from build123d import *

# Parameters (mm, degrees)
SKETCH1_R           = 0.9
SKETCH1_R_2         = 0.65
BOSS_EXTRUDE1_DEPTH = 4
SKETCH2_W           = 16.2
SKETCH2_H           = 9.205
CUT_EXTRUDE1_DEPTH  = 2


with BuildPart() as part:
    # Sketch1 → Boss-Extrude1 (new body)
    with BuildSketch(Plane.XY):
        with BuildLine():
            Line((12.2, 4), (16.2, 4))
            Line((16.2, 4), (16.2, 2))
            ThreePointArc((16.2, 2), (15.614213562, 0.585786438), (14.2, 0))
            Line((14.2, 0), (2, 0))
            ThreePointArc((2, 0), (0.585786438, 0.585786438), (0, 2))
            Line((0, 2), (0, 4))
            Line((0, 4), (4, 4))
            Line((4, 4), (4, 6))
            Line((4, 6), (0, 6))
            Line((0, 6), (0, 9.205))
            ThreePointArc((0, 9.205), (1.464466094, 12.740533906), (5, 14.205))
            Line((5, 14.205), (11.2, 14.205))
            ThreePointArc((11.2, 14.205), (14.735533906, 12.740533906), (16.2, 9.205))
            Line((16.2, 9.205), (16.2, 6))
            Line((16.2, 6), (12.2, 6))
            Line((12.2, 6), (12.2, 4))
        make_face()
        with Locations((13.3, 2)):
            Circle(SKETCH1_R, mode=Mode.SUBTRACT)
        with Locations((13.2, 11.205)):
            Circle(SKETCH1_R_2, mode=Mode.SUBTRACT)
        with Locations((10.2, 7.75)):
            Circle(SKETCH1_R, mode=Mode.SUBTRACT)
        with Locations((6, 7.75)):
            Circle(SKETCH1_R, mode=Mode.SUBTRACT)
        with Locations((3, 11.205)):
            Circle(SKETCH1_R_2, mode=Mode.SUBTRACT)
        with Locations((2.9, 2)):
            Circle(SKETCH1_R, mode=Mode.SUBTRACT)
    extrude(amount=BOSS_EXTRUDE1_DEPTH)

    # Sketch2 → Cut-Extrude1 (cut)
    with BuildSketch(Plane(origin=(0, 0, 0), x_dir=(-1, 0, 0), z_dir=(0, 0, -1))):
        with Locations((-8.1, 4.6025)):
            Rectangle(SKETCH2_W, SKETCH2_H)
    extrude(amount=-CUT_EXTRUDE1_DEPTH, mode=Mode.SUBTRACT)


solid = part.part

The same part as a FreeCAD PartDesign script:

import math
import FreeCAD as App
import Part
import Sketcher
Q = App.Units.Quantity


def add_polygon(sketch, points):
    """Adds a closed chain of lines whose ends are joined by coincident constraints."""
    first, n = sketch.GeometryCount, len(points)
    for a, b in zip(points, points[1:] + points[:1]):
        sketch.addGeometry(Part.LineSegment(App.Vector(*a, 0), App.Vector(*b, 0)), False)
    for i in range(n):
        sketch.addConstraint(Sketcher.Constraint("Coincident", first + i, 2, first + (i + 1) % n, 1))

doc = App.newDocument("Part")
body = doc.addObject("PartDesign::Body", "Body")

sketch1 = doc.addObject("Sketcher::SketchObject", "Sketch")
body.addObject(sketch1)
sketch1.AttachmentSupport = (doc.XY_Plane, [""])
sketch1.MapMode = "FlatFace"
sketch1.addGeometry([
    Part.LineSegment(App.Vector(16.2, 4, 0), App.Vector(12.2, 4, 0)),
    Part.LineSegment(App.Vector(12.2, 4, 0), App.Vector(12.2, 6, 0)),
    Part.LineSegment(App.Vector(12.2, 6, 0), App.Vector(16.2, 6, 0)),
    Part.LineSegment(App.Vector(16.2, 6, 0), App.Vector(16.2, 9.2, 0)),
    Part.ArcOfCircle(Part.Circle(App.Vector(11.2, 9.2, 0), App.Vector(0, 0, 1), 5), math.radians(0), math.radians(90)),
    Part.LineSegment(App.Vector(11.2, 14.2, 0), App.Vector(5, 14.2, 0)),
    Part.ArcOfCircle(Part.Circle(App.Vector(5, 9.2, 0), App.Vector(0, 0, 1), 5), math.radians(90), math.radians(180)),
    Part.LineSegment(App.Vector(0, 9.2, 0), App.Vector(0, 6, 0)),
    Part.LineSegment(App.Vector(0, 6, 0), App.Vector(4, 6, 0)),
    Part.LineSegment(App.Vector(4, 6, 0), App.Vector(4, 4, 0)),
    Part.LineSegment(App.Vector(4, 4, 0), App.Vector(0, 4, 0)),
    Part.LineSegment(App.Vector(0, 4, 0), App.Vector(0, 2, 0)),
    Part.ArcOfCircle(Part.Circle(App.Vector(2, 2, 0), App.Vector(0, 0, 1), 2), math.radians(-180), math.radians(-90)),
    Part.LineSegment(App.Vector(2, 0, 0), App.Vector(14.2, 0, 0)),
    Part.ArcOfCircle(Part.Circle(App.Vector(14.2, 2, 0), App.Vector(0, 0, 1), 2), math.radians(-90), math.radians(0)),
    Part.LineSegment(App.Vector(16.2, 2, 0), App.Vector(16.2, 4, 0)),
    Part.Circle(App.Vector(13.3, 2, 0), App.Vector(0, 0, 1), 0.9),
    Part.Circle(App.Vector(2.9, 2, 0), App.Vector(0, 0, 1), 0.9),
    Part.Circle(App.Vector(10.2, 7.8, 0), App.Vector(0, 0, 1), 0.9),
    Part.Circle(App.Vector(13.2, 11.2, 0), App.Vector(0, 0, 1), 0.7),
    Part.Circle(App.Vector(6, 7.8, 0), App.Vector(0, 0, 1), 0.9),
    Part.Circle(App.Vector(3, 11.2, 0), App.Vector(0, 0, 1), 0.7),
], False)
sketch1.addConstraint([
    Sketcher.Constraint("Coincident", 0, 2, 1, 1),
    Sketcher.Constraint("Coincident", 1, 2, 2, 1),
    Sketcher.Constraint("Coincident", 2, 2, 3, 1),
    Sketcher.Constraint("Tangent", 3, 2, 4, 1),
    Sketcher.Constraint("Tangent", 4, 2, 5, 1),
    Sketcher.Constraint("Tangent", 5, 2, 6, 1),
    Sketcher.Constraint("Tangent", 6, 2, 7, 1),
    Sketcher.Constraint("Coincident", 7, 2, 8, 1),
    Sketcher.Constraint("Coincident", 8, 2, 9, 1),
    Sketcher.Constraint("Coincident", 9, 2, 10, 1),
    Sketcher.Constraint("Coincident", 10, 2, 11, 1),
    Sketcher.Constraint("Tangent", 11, 2, 12, 1),
    Sketcher.Constraint("Tangent", 12, 2, 13, 1),
    Sketcher.Constraint("Tangent", 13, 2, 14, 1),
    Sketcher.Constraint("Tangent", 14, 2, 15, 1),
    Sketcher.Constraint("Coincident", 15, 2, 0, 1),
    Sketcher.Constraint("Horizontal", 0),
    Sketcher.Constraint("Vertical", 1),
    Sketcher.Constraint("Horizontal", 2),
    Sketcher.Constraint("Vertical", 3),
    Sketcher.Constraint("Horizontal", 5),
    Sketcher.Constraint("Vertical", 7),
    Sketcher.Constraint("Horizontal", 8),
    Sketcher.Constraint("Vertical", 9),
    Sketcher.Constraint("Horizontal", 10),
    Sketcher.Constraint("Vertical", 11),
    Sketcher.Constraint("Horizontal", 13),
    Sketcher.Constraint("Vertical", 15),
    Sketcher.Constraint("Equal", 4, 6),
    Sketcher.Constraint("Equal", 12, 14),
    Sketcher.Constraint("Equal", 16, 17),
    Sketcher.Constraint("Equal", 17, 18),
    Sketcher.Constraint("Equal", 18, 20),
    Sketcher.Constraint("Equal", 19, 21),
    Sketcher.Constraint("PointOnObject", 6, 2, -2),
    Sketcher.Constraint("PointOnObject", 10, 2, -2),
    Sketcher.Constraint("PointOnObject", 12, 2, -1),
    Sketcher.Constraint("Horizontal", 14, 3, 16, 3),
    Sketcher.Constraint("Horizontal", 16, 3, 17, 3),
    Sketcher.Constraint("Horizontal", 18, 3, 20, 3),
    Sketcher.Constraint("Horizontal", 19, 3, 21, 3),
    Sketcher.Constraint("Horizontal", 2, 2, 7, 2),
    Sketcher.Constraint("Horizontal", 0, 2, 9, 2),
    Sketcher.Constraint("Vertical", 3, 2, 14, 2),
    Sketcher.Constraint("Equal", 2, 8),
    Sketcher.Constraint("Equal", 9, 11),
    Sketcher.Constraint("Radius", 4, Q("5 mm")),
    Sketcher.Constraint("Radius", 12, Q("2 mm")),
    Sketcher.Constraint("Diameter", 16, Q("1.8 mm")),
    Sketcher.Constraint("Diameter", 19, Q("1.3 mm")),
    Sketcher.Constraint("DistanceX", 0, 2, 0, 1, Q("4 mm")),
    Sketcher.Constraint("DistanceY", 1, 1, 1, 2, Q("2 mm")),
    Sketcher.Constraint("DistanceX", 5, 2, 5, 1, Q("6.2 mm")),
    Sketcher.Constraint("DistanceX", -1, 1, 20, 3, Q("6 mm")),
    Sketcher.Constraint("DistanceX", -1, 1, 21, 3, Q("3 mm")),
    Sketcher.Constraint("DistanceX", 18, 3, 4, 3, Q("1 mm")),
    Sketcher.Constraint("DistanceX", 4, 3, 19, 3, Q("2 mm")),
    Sketcher.Constraint("DistanceY", 4, 3, 19, 3, Q("2 mm")),
    Sketcher.Constraint("DistanceX", -1, 1, 16, 3, Q("13.3 mm")),
    Sketcher.Constraint("DistanceX", -1, 1, 17, 3, Q("2.9 mm")),
    Sketcher.Constraint("DistanceY", 3, 1, 3, 2, Q("3.205 mm")),
    Sketcher.Constraint("DistanceY", -1, 1, 18, 3, Q("7.75 mm")),
])
pad1 = doc.addObject("PartDesign::Pad", "Pad")
body.addObject(pad1)
pad1.Profile = sketch1
pad1.Length = 4

sketch2 = doc.addObject("Sketcher::SketchObject", "Sketch001")
body.addObject(sketch2)
sketch2.AttachmentSupport = (doc.XY_Plane, [""])
sketch2.MapMode = "FlatFace"
add_polygon(sketch2, [(16, 9), (16, 0), (0, 0), (0, 9)])
sketch2.addConstraint([
    Sketcher.Constraint("Vertical", 0),
    Sketcher.Constraint("Horizontal", 1),
    Sketcher.Constraint("Vertical", 2),
    Sketcher.Constraint("Horizontal", 3),
    Sketcher.Constraint("Coincident", 1, 2, -1, 1),
    Sketcher.Constraint("DistanceX", 1, 2, 1, 1, Q("16.2 mm")),
    Sketcher.Constraint("DistanceY", 0, 2, 0, 1, Q("9.205 mm")),
])
pocket1 = doc.addObject("PartDesign::Pocket", "Pocket")
body.addObject(pocket1)
pocket1.Profile = sketch2
pocket1.Length = 2
pocket1.Reversed = True

doc.recompute()
